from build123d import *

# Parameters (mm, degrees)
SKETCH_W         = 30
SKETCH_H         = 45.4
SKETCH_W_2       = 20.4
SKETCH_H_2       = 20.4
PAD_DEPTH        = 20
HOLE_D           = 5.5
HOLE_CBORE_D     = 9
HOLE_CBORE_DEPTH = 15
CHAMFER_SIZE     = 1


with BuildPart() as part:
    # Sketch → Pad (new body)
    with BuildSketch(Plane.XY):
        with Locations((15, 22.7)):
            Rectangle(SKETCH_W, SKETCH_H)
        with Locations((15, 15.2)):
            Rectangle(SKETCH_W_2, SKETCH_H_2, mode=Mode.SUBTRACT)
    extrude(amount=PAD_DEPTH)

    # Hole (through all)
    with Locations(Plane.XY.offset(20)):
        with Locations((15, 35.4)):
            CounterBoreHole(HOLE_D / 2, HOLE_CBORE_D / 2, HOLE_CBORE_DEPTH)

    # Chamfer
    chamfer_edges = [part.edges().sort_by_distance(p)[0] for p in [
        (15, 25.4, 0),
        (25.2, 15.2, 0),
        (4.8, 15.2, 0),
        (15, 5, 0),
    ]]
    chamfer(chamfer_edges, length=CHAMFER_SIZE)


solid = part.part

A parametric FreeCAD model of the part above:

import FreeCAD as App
import Part
import Sketcher


def edges_at(feature, points):
    """Names of the edges that pass closest to the given points."""
    edges = feature.Shape.Edges
    near = lambda p: min(range(len(edges)), key=lambda i: edges[i].distToShape(Part.Vertex(*p))[0])
    return sorted({f"Edge{near(p) + 1}" for p in points})

doc = App.newDocument("Part")
body = doc.addObject("PartDesign::Body", "Body")

sketch1 = body.newObject("Sketcher::SketchObject", "Sketch")
sketch1.AttachmentSupport = (doc.getObject("XY_Plane"), [""])
sketch1.MapMode = "FlatFace"
sketch1.addGeometry([
    Part.LineSegment(App.Vector(0, 45, 0), App.Vector(0, 0, 0)),
    Part.LineSegment(App.Vector(0, 0, 0), App.Vector(30, 0, 0)),
    Part.LineSegment(App.Vector(30, 0, 0), App.Vector(30, 45, 0)),
    Part.LineSegment(App.Vector(30, 45, 0), App.Vector(0, 45, 0)),
    Part.LineSegment(App.Vector(25, 5, 0), App.Vector(5, 5, 0)),
    Part.LineSegment(App.Vector(5, 5, 0), App.Vector(5, 25, 0)),
    Part.LineSegment(App.Vector(5, 25, 0), App.Vector(25, 25, 0)),
    Part.LineSegment(App.Vector(25, 25, 0), App.Vector(25, 5, 0)),
], False)
sketch1.addConstraint([
    Sketcher.Constraint("Coincident", 0, 2, 1, 1),
    Sketcher.Constraint("Coincident", 1, 2, 2, 1),
    Sketcher.Constraint("Coincident", 2, 2, 3, 1),
    Sketcher.Constraint("Coincident", 3, 2, 0, 1),
    Sketcher.Constraint("Coincident", 4, 2, 5, 1),
    Sketcher.Constraint("Coincident", 5, 2, 6, 1),
    Sketcher.Constraint("Coincident", 6, 2, 7, 1),
    Sketcher.Constraint("Coincident", 7, 2, 4, 1),
    Sketcher.Constraint("Vertical", 0),
    Sketcher.Constraint("Horizontal", 1),
    Sketcher.Constraint("Vertical", 2),
    Sketcher.Constraint("Horizontal", 3),
    Sketcher.Constraint("Horizontal", 4),
    Sketcher.Constraint("Vertical", 5),
    Sketcher.Constraint("Horizontal", 6),
    Sketcher.Constraint("Vertical", 7),
    Sketcher.Constraint("Coincident", 0, 2, -1, 1),
    Sketcher.Constraint("Equal", 6, 5),
    Sketcher.Constraint("DistanceX", 1, 1, 1, 2, 30.0),
    Sketcher.Constraint("DistanceX", 4, 2, 4, 1, 20.4),
    Sketcher.Constraint("DistanceY", 0, 2, 0, 1, 45.4),
    Sketcher.Constraint("DistanceY", -1, 1, 4, 2, 5.0),
    Sketcher.Constraint("DistanceX", -1, 1, 4, 2, 4.8),
])
pad1 = body.newObject("PartDesign::Pad", "Pad")
pad1.Profile = sketch1
pad1.Length = 20

sketch2 = body.newObject("Sketcher::SketchObject", "Sketch001")
sketch2.AttachmentSupport = (doc.getObject("XY_Plane"), [""])
sketch2.MapMode = "FlatFace"
sketch2.AttachmentOffset = App.Placement(App.Vector(0, 0, 20), App.Rotation())
sketch2.addGeometry(Part.Circle(App.Vector(15, 35.4, 0), App.Vector(0, 0, 1), 2.8), False)
sketch2.addConstraint([
    Sketcher.Constraint("Diameter", 0, 5.5),
    Sketcher.Constraint("DistanceX", -1, 1, 0, 3, 15.0),
    Sketcher.Constraint("DistanceY", -1, 1, 0, 3, 35.4),
])
doc.recompute()
hole = body.newObject("PartDesign::Hole", "Hole")
hole.Profile = sketch2
hole.ThreadType = "None"
hole.Diameter = 5.5
hole.DepthType = "ThroughAll"
hole.HoleCutType = "Counterbore"
hole.HoleCutDiameter = 9
hole.HoleCutDepth = 15
doc.recompute()

chamfer = body.newObject("PartDesign::Chamfer", "Chamfer")
chamfer.Base = (hole, edges_at(hole, [
    (15, 25.4, 0),
    (25.2, 15.2, 0),
    (4.8, 15.2, 0),
    (15, 5, 0),
]))
chamfer.Size = 1

doc.recompute()
